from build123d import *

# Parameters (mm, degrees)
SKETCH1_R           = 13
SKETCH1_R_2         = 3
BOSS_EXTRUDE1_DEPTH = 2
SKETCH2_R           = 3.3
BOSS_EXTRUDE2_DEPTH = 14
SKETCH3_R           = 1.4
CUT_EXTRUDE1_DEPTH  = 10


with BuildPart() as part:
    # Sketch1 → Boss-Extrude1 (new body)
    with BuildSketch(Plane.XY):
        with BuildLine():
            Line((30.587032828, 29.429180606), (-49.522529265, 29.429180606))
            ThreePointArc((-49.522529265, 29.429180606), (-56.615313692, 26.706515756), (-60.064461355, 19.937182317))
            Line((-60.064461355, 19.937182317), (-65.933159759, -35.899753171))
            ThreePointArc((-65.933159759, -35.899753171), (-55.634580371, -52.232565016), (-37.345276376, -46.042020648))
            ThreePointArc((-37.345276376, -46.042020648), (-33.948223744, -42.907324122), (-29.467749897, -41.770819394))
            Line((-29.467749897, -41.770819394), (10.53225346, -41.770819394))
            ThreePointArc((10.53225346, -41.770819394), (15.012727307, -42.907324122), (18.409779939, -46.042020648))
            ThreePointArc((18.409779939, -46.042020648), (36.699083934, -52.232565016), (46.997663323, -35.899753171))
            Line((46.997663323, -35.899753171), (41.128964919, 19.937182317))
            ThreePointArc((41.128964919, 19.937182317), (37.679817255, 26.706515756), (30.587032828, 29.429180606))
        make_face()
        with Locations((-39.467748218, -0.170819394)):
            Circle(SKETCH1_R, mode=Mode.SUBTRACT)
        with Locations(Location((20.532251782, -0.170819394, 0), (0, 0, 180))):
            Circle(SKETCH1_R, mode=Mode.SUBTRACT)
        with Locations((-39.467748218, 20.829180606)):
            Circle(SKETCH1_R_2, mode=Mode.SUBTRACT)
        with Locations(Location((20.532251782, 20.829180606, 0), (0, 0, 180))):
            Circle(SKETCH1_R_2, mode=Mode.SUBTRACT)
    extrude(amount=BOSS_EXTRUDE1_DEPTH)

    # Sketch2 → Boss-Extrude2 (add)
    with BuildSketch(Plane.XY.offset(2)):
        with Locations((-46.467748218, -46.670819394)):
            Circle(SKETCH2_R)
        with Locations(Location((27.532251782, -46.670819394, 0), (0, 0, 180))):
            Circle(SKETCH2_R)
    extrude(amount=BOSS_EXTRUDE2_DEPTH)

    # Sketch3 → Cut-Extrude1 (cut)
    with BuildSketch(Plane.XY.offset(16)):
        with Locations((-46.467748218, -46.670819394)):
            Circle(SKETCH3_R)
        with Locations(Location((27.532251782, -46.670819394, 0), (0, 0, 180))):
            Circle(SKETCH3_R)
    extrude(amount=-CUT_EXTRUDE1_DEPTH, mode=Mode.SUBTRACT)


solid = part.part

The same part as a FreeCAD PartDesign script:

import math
import FreeCAD as App
import Part
import Sketcher
from FreeCAD import Vector
Q = App.Units.Quantity

doc = App.newDocument("Part")
params = doc.addObject("Spreadsheet::Sheet", "Params")
for row, (alias, value) in enumerate([
    ("sketch1_diameter", "26 mm"),
    ("sketch1_diameter2", "6 mm"),
    ("sketch1_radius", "10.6 mm"),
    ("sketch1_radius2", "15.6 mm"),
    ("sketch1_radius3", "9.4 mm"),
    ("pad1_length", "2 mm"),
    ("sketch2_diameter", "6.6 mm"),
    ("pad2_length", "14 mm"),
    ("sketch3_diameter", "2.8 mm"),
    ("pocket1_length", "10 mm"),
], start=1):
    params.set(f"A{row}", alias)
    params.set(f"B{row}", "=" + value)
    params.setAlias(f"B{row}", alias)

body = doc.addObject("PartDesign::Body", "Body")

sketch1 = body.newObject("Sketcher::SketchObject", "Sketch")
sketch1.AttachmentSupport = (doc.getObject("XY_Plane"), [""])
sketch1.MapMode = "FlatFace"
sketch1.addGeometry(Part.LineSegment(Vector(30.6, 29.4, 0), Vector(-49.5, 29.4, 0)), False)
sketch1.addGeometry(Part.ArcOfCircle(Part.Circle(Vector(-49.5, 18.8, 0), Vector(0, 0, 1), 10.6), math.radians(90), math.radians(174)), False)
sketch1.addGeometry(Part.LineSegment(Vector(-60.1, 19.9, 0), Vector(-65.9, -35.9, 0)), False)
sketch1.addGeometry(Part.ArcOfCircle(Part.Circle(Vector(-50.4, -37.5, 0), Vector(0, 0, 1), 15.6), math.radians(174), math.radians(327)), False)
sketch1.addGeometry(Part.ArcOfCircle(Part.Circle(Vector(-29.5, -51.2, 0), Vector(0, 0, 1), 9.4), math.radians(90), math.radians(147)), False)
sketch1.addGeometry(Part.LineSegment(Vector(-29.5, -41.8, 0), Vector(10.5, -41.8, 0)), False)
sketch1.addGeometry(Part.ArcOfCircle(Part.Circle(Vector(10.5, -51.2, 0), Vector(0, 0, 1), 9.4), math.radians(33), math.radians(90)), False)
sketch1.addGeometry(Part.ArcOfCircle(Part.Circle(Vector(31.5, -37.5, 0), Vector(0, 0, 1), 15.6), math.radians(-147), math.radians(6)), False)
sketch1.addGeometry(Part.LineSegment(Vector(47, -35.9, 0), Vector(41.1, 19.9, 0)), False)
sketch1.addGeometry(Part.ArcOfCircle(Part.Circle(Vector(30.6, 18.8, 0), Vector(0, 0, 1), 10.6), math.radians(6), math.radians(90)), False)
sketch1.addGeometry(Part.Circle(Vector(-39.5, -0.2, 0), Vector(0, 0, 1), 13), False)
sketch1.addGeometry(Part.Circle(Vector(20.5, -0.2, 0), Vector(0, 0, 1), 13), False)
sketch1.addGeometry(Part.Circle(Vector(-39.5, 20.8, 0), Vector(0, 0, 1), 3), False)
sketch1.addGeometry(Part.Circle(Vector(20.5, 20.8, 0), Vector(0, 0, 1), 3), False)
sketch1.addConstraint(Sketcher.Constraint("Tangent", 0, 2, 1, 1))
sketch1.addConstraint(Sketcher.Constraint("Tangent", 1, 2, 2, 1))
sketch1.addConstraint(Sketcher.Constraint("Tangent", 2, 2, 3, 1))
sketch1.addConstraint(Sketcher.Constraint("Tangent", 3, 2, 4, 2))
sketch1.addConstraint(Sketcher.Constraint("Tangent", 4, 1, 5, 1))
sketch1.addConstraint(Sketcher.Constraint("Tangent", 5, 2, 6, 2))
sketch1.addConstraint(Sketcher.Constraint("Tangent", 6, 1, 7, 1))
sketch1.addConstraint(Sketcher.Constraint("Tangent", 7, 2, 8, 1))
sketch1.addConstraint(Sketcher.Constraint("Tangent", 8, 2, 9, 1))
sketch1.addConstraint(Sketcher.Constraint("Tangent", 9, 2, 0, 1))
sketch1.addConstraint(Sketcher.Constraint("Horizontal", 0))
sketch1.addConstraint(Sketcher.Constraint("Horizontal", 5))
sketch1.addConstraint(Sketcher.Constraint("Equal", 4, 6))
sketch1.addConstraint(Sketcher.Constraint("Equal", 3, 7))
sketch1.addConstraint(Sketcher.Constraint("Equal", 1, 9))
sketch1.addConstraint(Sketcher.Constraint("Equal", 10, 11))
sketch1.addConstraint(Sketcher.Constraint("Equal", 12, 13))
sketch1.addConstraint(Sketcher.Constraint("Horizontal", 3, 3, 7, 3))
sketch1.addConstraint(Sketcher.Constraint("Horizontal", 10, 3, 11, 3))
sketch1.addConstraint(Sketcher.Constraint("Horizontal", 12, 3, 13, 3))
sketch1.addConstraint(Sketcher.Constraint("Horizontal", 2, 2, 7, 2))
sketch1.addConstraint(Sketcher.Constraint("Vertical", 10, 3, 12, 3))
sketch1.addConstraint(Sketcher.Constraint("Vertical", 11, 3, 13, 3))
sketch1.addConstraint(Sketcher.Constraint("Diameter", 10, 26.0))
sketch1.addConstraint(Sketcher.Constraint("Diameter", 12, 6.0))
sketch1.addConstraint(Sketcher.Constraint("Radius", 1, 10.6))
sketch1.addConstraint(Sketcher.Constraint("Radius", 3, 15.6))
sketch1.addConstraint(Sketcher.Constraint("Radius", 4, 9.4))
sketch1.addConstraint(Sketcher.Constraint("Angle", 2, Q("-96 deg")))
sketch1.addConstraint(Sketcher.Constraint("DistanceY", 4, 3, 1, 3, 70.0))
sketch1.addConstraint(Sketcher.Constraint("DistanceY", 10, 3, 1, 3, 19.0))
sketch1.addConstraint(Sketcher.Constraint("DistanceX", 10, 3, 4, 3, 9.999998))
sketch1.addConstraint(Sketcher.Constraint("DistanceX", 10, 3, 6, 3, 50.000002))
sketch1.addConstraint(Sketcher.Constraint("DistanceX", 6, 3, 11, 3, 9.999998))
sketch1.addConstraint(Sketcher.Constraint("DistanceY", 1, 3, 12, 3, 2.0))
sketch1.addConstraint(Sketcher.Constraint("Distance", 2, 56.144501))
sketch1.addConstraint(Sketcher.Constraint("DistanceX", 1, 3, -1, 1, 49.522529))
sketch1.addConstraint(Sketcher.Constraint("DistanceY", -1, 1, 1, 3, 18.829181))
sketch1.setExpression("Constraints[23]", "Params.sketch1_diameter")
sketch1.setExpression("Constraints[24]", "Params.sketch1_diameter2")
sketch1.setExpression("Constraints[25]", "Params.sketch1_radius")
sketch1.setExpression("Constraints[26]", "Params.sketch1_radius2")
sketch1.setExpression("Constraints[27]", "Params.sketch1_radius3")
pad1 = body.newObject("PartDesign::Pad", "Pad")
pad1.Profile = sketch1
pad1.setExpression("Length", "Params.pad1_length")

sketch2 = body.newObject("Sketcher::SketchObject", "Sketch001")
sketch2.AttachmentSupport = (doc.getObject("XY_Plane"), [""])
sketch2.MapMode = "FlatFace"
sketch2.AttachmentOffset = App.Placement(Vector(0, 0, 2), App.Rotation())
sketch2.addGeometry(Part.Circle(Vector(-46.5, -46.7, 0), Vector(0, 0, 1), 3.3), False)
sketch2.addGeometry(Part.Circle(Vector(27.5, -46.7, 0), Vector(0, 0, 1), 3.3), False)
sketch2.addConstraint(Sketcher.Constraint("Equal", 0, 1))
sketch2.addConstraint(Sketcher.Constraint("Horizontal", 0, 3, 1, 3))
sketch2.addConstraint(Sketcher.Constraint("Diameter", 0, 6.6))
sketch2.addConstraint(Sketcher.Constraint("DistanceX", 0, 3, 1, 3, 74.0))
sketch2.addConstraint(Sketcher.Constraint("DistanceX", 0, 3, -1, 1, 46.467748))
sketch2.addConstraint(Sketcher.Constraint("DistanceY", 0, 3, -1, 1, 46.670819))
sketch2.setExpression("Constraints[2]", "Params.sketch2_diameter")
pad2 = body.newObject("PartDesign::Pad", "Pad001")
pad2.Profile = sketch2
pad2.setExpression("Length", "Params.pad2_length")

sketch3 = body.newObject("Sketcher::SketchObject", "Sketch002")
sketch3.AttachmentSupport = (doc.getObject("XY_Plane"), [""])
sketch3.MapMode = "FlatFace"
sketch3.AttachmentOffset = App.Placement(Vector(0, 0, 16), App.Rotation())
sketch3.addGeometry(Part.Circle(Vector(-46.5, -46.7, 0), Vector(0, 0, 1), 1.4), False)
sketch3.addGeometry(Part.Circle(Vector(27.5, -46.7, 0), Vector(0, 0, 1), 1.4), False)
sketch3.addConstraint(Sketcher.Constraint("Equal", 0, 1))
sketch3.addConstraint(Sketcher.Constraint("Horizontal", 0, 3, 1, 3))
sketch3.addConstraint(Sketcher.Constraint("Diameter", 0, 2.8))
sketch3.addConstraint(Sketcher.Constraint("DistanceX", 0, 3, 1, 3, 74.0))
sketch3.addConstraint(Sketcher.Constraint("DistanceX", 0, 3, -1, 1, 46.467748))
sketch3.addConstraint(Sketcher.Constraint("DistanceY", 0, 3, -1, 1, 46.670819))
sketch3.setExpression("Constraints[2]", "Params.sketch3_diameter")
pocket1 = body.newObject("PartDesign::Pocket", "Pocket")
pocket1.Profile = sketch3
pocket1.setExpression("Length", "Params.pocket1_length")

doc.recompute()
